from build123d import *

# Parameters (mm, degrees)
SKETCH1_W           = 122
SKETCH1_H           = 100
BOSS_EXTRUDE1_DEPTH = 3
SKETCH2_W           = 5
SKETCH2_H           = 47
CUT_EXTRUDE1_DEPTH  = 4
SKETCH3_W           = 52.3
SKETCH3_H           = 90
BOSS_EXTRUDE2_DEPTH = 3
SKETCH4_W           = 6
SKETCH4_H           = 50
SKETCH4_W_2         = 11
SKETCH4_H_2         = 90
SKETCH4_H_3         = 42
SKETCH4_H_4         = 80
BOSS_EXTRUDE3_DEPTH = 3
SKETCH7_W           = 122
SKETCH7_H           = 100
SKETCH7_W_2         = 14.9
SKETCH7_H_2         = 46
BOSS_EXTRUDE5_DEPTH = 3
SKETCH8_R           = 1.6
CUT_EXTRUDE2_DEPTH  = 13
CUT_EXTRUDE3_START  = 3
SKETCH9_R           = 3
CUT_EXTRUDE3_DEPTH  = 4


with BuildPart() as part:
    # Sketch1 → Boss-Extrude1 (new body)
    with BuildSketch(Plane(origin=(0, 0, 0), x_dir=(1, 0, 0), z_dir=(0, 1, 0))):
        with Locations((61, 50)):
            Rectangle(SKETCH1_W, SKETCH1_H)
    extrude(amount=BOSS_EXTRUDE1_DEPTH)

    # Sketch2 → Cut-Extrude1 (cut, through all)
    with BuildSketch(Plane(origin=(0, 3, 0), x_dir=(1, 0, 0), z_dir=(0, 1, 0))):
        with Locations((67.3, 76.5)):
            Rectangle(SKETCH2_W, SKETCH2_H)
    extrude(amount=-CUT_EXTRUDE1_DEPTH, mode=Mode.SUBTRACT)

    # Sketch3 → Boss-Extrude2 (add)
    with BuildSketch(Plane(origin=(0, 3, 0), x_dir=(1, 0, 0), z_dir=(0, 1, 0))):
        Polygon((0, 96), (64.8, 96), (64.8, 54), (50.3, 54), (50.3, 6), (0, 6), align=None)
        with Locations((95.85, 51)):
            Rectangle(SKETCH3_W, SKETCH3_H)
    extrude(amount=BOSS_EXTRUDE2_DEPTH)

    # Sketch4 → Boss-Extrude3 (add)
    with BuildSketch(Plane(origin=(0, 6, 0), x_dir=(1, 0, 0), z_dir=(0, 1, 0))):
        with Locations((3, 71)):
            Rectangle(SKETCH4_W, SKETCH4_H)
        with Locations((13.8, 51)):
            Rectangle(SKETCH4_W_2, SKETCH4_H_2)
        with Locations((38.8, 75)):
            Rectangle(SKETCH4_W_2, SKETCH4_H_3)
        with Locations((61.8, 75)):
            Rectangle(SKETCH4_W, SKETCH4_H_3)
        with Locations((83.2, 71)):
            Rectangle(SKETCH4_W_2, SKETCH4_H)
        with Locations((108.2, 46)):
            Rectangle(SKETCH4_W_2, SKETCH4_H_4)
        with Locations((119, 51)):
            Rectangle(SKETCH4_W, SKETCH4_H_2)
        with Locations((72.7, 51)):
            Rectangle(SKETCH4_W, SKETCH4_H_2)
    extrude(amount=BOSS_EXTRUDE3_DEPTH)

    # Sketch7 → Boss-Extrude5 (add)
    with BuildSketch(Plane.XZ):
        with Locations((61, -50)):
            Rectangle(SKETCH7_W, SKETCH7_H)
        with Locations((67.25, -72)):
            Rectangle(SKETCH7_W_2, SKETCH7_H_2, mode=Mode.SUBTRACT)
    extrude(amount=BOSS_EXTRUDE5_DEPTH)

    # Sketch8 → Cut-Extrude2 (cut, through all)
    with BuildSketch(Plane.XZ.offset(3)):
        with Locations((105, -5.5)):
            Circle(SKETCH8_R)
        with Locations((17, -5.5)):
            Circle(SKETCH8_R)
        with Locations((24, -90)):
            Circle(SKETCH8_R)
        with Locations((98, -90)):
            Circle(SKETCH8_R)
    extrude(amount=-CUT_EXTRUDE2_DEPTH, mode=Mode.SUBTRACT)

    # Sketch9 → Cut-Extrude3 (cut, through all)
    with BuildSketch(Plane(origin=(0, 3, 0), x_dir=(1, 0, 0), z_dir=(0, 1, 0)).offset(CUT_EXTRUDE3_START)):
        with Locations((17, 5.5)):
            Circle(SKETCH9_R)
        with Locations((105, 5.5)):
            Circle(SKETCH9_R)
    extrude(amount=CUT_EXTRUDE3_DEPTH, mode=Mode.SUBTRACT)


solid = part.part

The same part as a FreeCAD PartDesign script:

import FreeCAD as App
import Part
import Sketcher

doc = App.newDocument("Part")
body = doc.addObject("PartDesign::Body", "Body")

# Sketch on XZ plane
sketch1 = doc.addObject("Sketcher::SketchObject", "Sketch")
body.addObject(sketch1)
sketch1.AttachmentSupport = (doc.XZ_Plane, [""])
sketch1.MapMode = "FlatFace"
sketch1.addGeometry(Part.LineSegment(App.Vector(0, -100, 0), App.Vector(0, 0, 0)), False)
sketch1.addGeometry(Part.LineSegment(App.Vector(0, 0, 0), App.Vector(122, 0, 0)), False)
sketch1.addGeometry(Part.LineSegment(App.Vector(122, 0, 0), App.Vector(122, -100, 0)), False)
sketch1.addGeometry(Part.LineSegment(App.Vector(122, -100, 0), App.Vector(0, -100, 0)), False)
sketch1.addConstraint(Sketcher.Constraint("Coincident", 0, 2, 1, 1))
sketch1.addConstraint(Sketcher.Constraint("Coincident", 1, 2, 2, 1))
sketch1.addConstraint(Sketcher.Constraint("Coincident", 2, 2, 3, 1))
sketch1.addConstraint(Sketcher.Constraint("Coincident", 3, 2, 0, 1))
sketch1.addConstraint(Sketcher.Constraint("Vertical", 0))
sketch1.addConstraint(Sketcher.Constraint("Horizontal", 1))
sketch1.addConstraint(Sketcher.Constraint("Vertical", 2))
sketch1.addConstraint(Sketcher.Constraint("Horizontal", 3))
sketch1.addConstraint(Sketcher.Constraint("Coincident", 0, 2, -1, 1))
sketch1.addConstraint(Sketcher.Constraint("DistanceX", 1, 1, 1, 2, 122.0))
sketch1.addConstraint(Sketcher.Constraint("DistanceY", 0, 1, 0, 2, 100.0))
pad1 = doc.addObject("PartDesign::Pad", "Pad")
body.addObject(pad1)
pad1.Profile = sketch1
pad1.Length = 3
pad1.Reversed = True

# Sketch on XZ plane
sketch2 = doc.addObject("Sketcher::SketchObject", "Sketch001")
body.addObject(sketch2)
sketch2.AttachmentSupport = (doc.XZ_Plane, [""])
sketch2.MapMode = "FlatFace"
sketch2.AttachmentOffset = App.Placement(App.Vector(0, 0, -3), App.Rotation())
sketch2.addGeometry(Part.LineSegment(App.Vector(65, -100, 0), App.Vector(65, -53, 0)), False)
sketch2.addGeometry(Part.LineSegment(App.Vector(65, -53, 0), App.Vector(70, -53, 0)), False)
sketch2.addGeometry(Part.LineSegment(App.Vector(70, -53, 0), App.Vector(70, -100, 0)), False)
sketch2.addGeometry(Part.LineSegment(App.Vector(70, -100, 0), App.Vector(65, -100, 0)), False)
sketch2.addConstraint(Sketcher.Constraint("Coincident", 0, 2, 1, 1))
sketch2.addConstraint(Sketcher.Constraint("Coincident", 1, 2, 2, 1))
sketch2.addConstraint(Sketcher.Constraint("Coincident", 2, 2, 3, 1))
sketch2.addConstraint(Sketcher.Constraint("Coincident", 3, 2, 0, 1))
sketch2.addConstraint(Sketcher.Constraint("Vertical", 0))
sketch2.addConstraint(Sketcher.Constraint("Horizontal", 1))
sketch2.addConstraint(Sketcher.Constraint("Vertical", 2))
sketch2.addConstraint(Sketcher.Constraint("Horizontal", 3))
sketch2.addConstraint(Sketcher.Constraint("DistanceX", 1, 1, 1, 2, 5.0))
sketch2.addConstraint(Sketcher.Constraint("DistanceY", 0, 1, 0, 2, 47.0))
sketch2.addConstraint(Sketcher.Constraint("DistanceY", 0, 2, -1, 1, 53.0))
sketch2.addConstraint(Sketcher.Constraint("DistanceX", -1, 1, 0, 2, 64.8))
pocket1 = doc.addObject("PartDesign::Pocket", "Pocket")
body.addObject(pocket1)
pocket1.Profile = sketch2
pocket1.Type = "ThroughAll"
pocket1.Reversed = True

# Sketch on XZ plane
sketch3 = doc.addObject("Sketcher::SketchObject", "Sketch002")
body.addObject(sketch3)
sketch3.AttachmentSupport = (doc.XZ_Plane, [""])
sketch3.MapMode = "FlatFace"
sketch3.AttachmentOffset = App.Placement(App.Vector(0, 0, -3), App.Rotation())
sketch3.addGeometry(Part.LineSegment(App.Vector(65, -96, 0), App.Vector(0, -96, 0)), False)
sketch3.addGeometry(Part.LineSegment(App.Vector(0, -96, 0), App.Vector(0, -6, 0)), False)
sketch3.addGeometry(Part.LineSegment(App.Vector(0, -6, 0), App.Vector(50, -6, 0)), False)
sketch3.addGeometry(Part.LineSegment(App.Vector(50, -6, 0), App.Vector(50, -54, 0)), False)
sketch3.addGeometry(Part.LineSegment(App.Vector(50, -54, 0), App.Vector(65, -54, 0)), False)
sketch3.addGeometry(Part.LineSegment(App.Vector(65, -54, 0), App.Vector(65, -96, 0)), False)
sketch3.addGeometry(Part.LineSegment(App.Vector(70, -96, 0), App.Vector(70, -6, 0)), False)
sketch3.addGeometry(Part.LineSegment(App.Vector(70, -6, 0), App.Vector(122, -6, 0)), False)
sketch3.addGeometry(Part.LineSegment(App.Vector(122, -6, 0), App.Vector(122, -96, 0)), False)
sketch3.addGeometry(Part.LineSegment(App.Vector(122, -96, 0), App.Vector(70, -96, 0)), False)
sketch3.addConstraint(Sketcher.Constraint("Coincident", 0, 2, 1, 1))
sketch3.addConstraint(Sketcher.Constraint("Coincident", 1, 2, 2, 1))
sketch3.addConstraint(Sketcher.Constraint("Coincident", 2, 2, 3, 1))
sketch3.addConstraint(Sketcher.Constraint("Coincident", 3, 2, 4, 1))
sketch3.addConstraint(Sketcher.Constraint("Coincident", 4, 2, 5, 1))
sketch3.addConstraint(Sketcher.Constraint("Coincident", 5, 2, 0, 1))
sketch3.addConstraint(Sketcher.Constraint("Coincident", 6, 2, 7, 1))
sketch3.addConstraint(Sketcher.Constraint("Coincident", 7, 2, 8, 1))
sketch3.addConstraint(Sketcher.Constraint("Coincident", 8, 2, 9, 1))
sketch3.addConstraint(Sketcher.Constraint("Coincident", 9, 2, 6, 1))
sketch3.addConstraint(Sketcher.Constraint("Horizontal", 0))
sketch3.addConstraint(Sketcher.Constraint("Vertical", 1))
sketch3.addConstraint(Sketcher.Constraint("Horizontal", 2))
sketch3.addConstraint(Sketcher.Constraint("Vertical", 3))
sketch3.addConstraint(Sketcher.Constraint("Horizontal", 4))
sketch3.addConstraint(Sketcher.Constraint("Vertical", 5))
sketch3.addConstraint(Sketcher.Constraint("Vertical", 6))
sketch3.addConstraint(Sketcher.Constraint("Horizontal", 7))
sketch3.addConstraint(Sketcher.Constraint("Vertical", 8))
sketch3.addConstraint(Sketcher.Constraint("Horizontal", 9))
sketch3.addConstraint(Sketcher.Constraint("PointOnObject", 0, 2, -2))
sketch3.addConstraint(Sketcher.Constraint("Horizontal", 2, 2, 6, 2))
sketch3.addConstraint(Sketcher.Constraint("Horizontal", 5, 2, 8, 2))
sketch3.addConstraint(Sketcher.Constraint("DistanceY", 1, 1, 1, 2, 90.0))
sketch3.addConstraint(Sketcher.Constraint("DistanceY", 3, 2, 3, 1, 48.0))
sketch3.addConstraint(Sketcher.Constraint("DistanceX", 0, 2, 0, 1, 64.8))
sketch3.addConstraint(Sketcher.Constraint("DistanceX", 2, 1, 2, 2, 50.3))
sketch3.addConstraint(Sketcher.Constraint("DistanceX", 7, 1, 7, 2, 52.3))
sketch3.addConstraint(Sketcher.Constraint("DistanceY", 0, 2, -1, 1, 96.0))
sketch3.addConstraint(Sketcher.Constraint("DistanceX", -1, 1, 7, 2, 122.0))
pad2 = doc.addObject("PartDesign::Pad", "Pad001")
body.addObject(pad2)
pad2.Profile = sketch3
pad2.Length = 3
pad2.Reversed = True

# Sketch on XZ plane
sketch4 = doc.addObject("Sketcher::SketchObject", "Sketch003")
body.addObject(sketch4)
sketch4.AttachmentSupport = (doc.XZ_Plane, [""])
sketch4.MapMode = "FlatFace"
sketch4.AttachmentOffset = App.Placement(App.Vector(0, 0, -6), App.Rotation())
sketch4.addGeometry(Part.LineSegment(App.Vector(0, -96, 0), App.Vector(0, -46, 0)), False)
sketch4.addGeometry(Part.LineSegment(App.Vector(0, -46, 0), App.Vector(6, -46, 0)), False)
sketch4.addGeometry(Part.LineSegment(App.Vector(6, -46, 0), App.Vector(6, -96, 0)), False)
sketch4.addGeometry(Part.LineSegment(App.Vector(6, -96, 0), App.Vector(0, -96, 0)), False)
sketch4.addGeometry(Part.LineSegment(App.Vector(8, -96, 0), App.Vector(8, -6, 0)), False)
sketch4.addGeometry(Part.LineSegment(App.Vector(8, -6, 0), App.Vector(19, -6, 0)), False)
sketch4.addGeometry(Part.LineSegment(App.Vector(19, -6, 0), App.Vector(19, -96, 0)), False)
sketch4.addGeometry(Part.LineSegment(App.Vector(19, -96, 0), App.Vector(8, -96, 0)), False)
sketch4.addGeometry(Part.LineSegment(App.Vector(33, -96, 0), App.Vector(33, -54, 0)), False)
sketch4.addGeometry(Part.LineSegment(App.Vector(33, -54, 0), App.Vector(44, -54, 0)), False)
sketch4.addGeometry(Part.LineSegment(App.Vector(44, -54, 0), App.Vector(44, -96, 0)), False)
sketch4.addGeometry(Part.LineSegment(App.Vector(44, -96, 0), App.Vector(33, -96, 0)), False)
sketch4.addGeometry(Part.LineSegment(App.Vector(59, -96, 0), App.Vector(59, -54, 0)), False)
sketch4.addGeometry(Part.LineSegment(App.Vector(59, -54, 0), App.Vector(65, -54, 0)), False)
sketch4.addGeometry(Part.LineSegment(App.Vector(65, -54, 0), App.Vector(65, -96, 0)), False)
sketch4.addGeometry(Part.LineSegment(App.Vector(65, -96, 0), App.Vector(59, -96, 0)), False)
sketch4.addGeometry(Part.LineSegment(App.Vector(78, -96, 0), App.Vector(78, -46, 0)), False)
sketch4.addGeometry(Part.LineSegment(App.Vector(78, -46, 0), App.Vector(89, -46, 0)), False)
sketch4.addGeometry(Part.LineSegment(App.Vector(89, -46, 0), App.Vector(89, -96, 0)), False)
sketch4.addGeometry(Part.LineSegment(App.Vector(89, -96, 0), App.Vector(78, -96, 0)), False)
sketch4.addGeometry(Part.LineSegment(App.Vector(103, -86, 0), App.Vector(103, -6, 0)), False)
sketch4.addGeometry(Part.LineSegment(App.Vector(103, -6, 0), App.Vector(114, -6, 0)), False)
sketch4.addGeometry(Part.LineSegment(App.Vector(114, -6, 0), App.Vector(114, -86, 0)), False)
sketch4.addGeometry(Part.LineSegment(App.Vector(114, -86, 0), App.Vector(103, -86, 0)), False)
sketch4.addGeometry(Part.LineSegment(App.Vector(116, -96, 0), App.Vector(116, -6, 0)), False)
sketch4.addGeometry(Part.LineSegment(App.Vector(116, -6, 0), App.Vector(122, -6, 0)), False)
sketch4.addGeometry(Part.LineSegment(App.Vector(122, -6, 0), App.Vector(122, -96, 0)), False)
sketch4.addGeometry(Part.LineSegment(App.Vector(122, -96, 0), App.Vector(116, -96, 0)), False)
sketch4.addGeometry(Part.LineSegment(App.Vector(70, -96, 0), App.Vector(70, -6, 0)), False)
sketch4.addGeometry(Part.LineSegment(App.Vector(70, -6, 0), App.Vector(76, -6, 0)), False)
sketch4.addGeometry(Part.LineSegment(App.Vector(76, -6, 0), App.Vector(76, -96, 0)), False)
sketch4.addGeometry(Part.LineSegment(App.Vector(76, -96, 0), App.Vector(70, -96, 0)), False)
sketch4.addConstraint(Sketcher.Constraint("Coincident", 0, 2, 1, 1))
sketch4.addConstraint(Sketcher.Constraint("Coincident", 1, 2, 2, 1))
sketch4.addConstraint(Sketcher.Constraint("Coincident", 2, 2, 3, 1))
sketch4.addConstraint(Sketcher.Constraint("Coincident", 3, 2, 0, 1))
sketch4.addConstraint(Sketcher.Constraint("Coincident", 4, 2, 5, 1))
sketch4.addConstraint(Sketcher.Constraint("Coincident", 5, 2, 6, 1))
sketch4.addConstraint(Sketcher.Constraint("Coincident", 6, 2, 7, 1))
sketch4.addConstraint(Sketcher.Constraint("Coincident", 7, 2, 4, 1))
sketch4.addConstraint(Sketcher.Constraint("Coincident", 8, 2, 9, 1))
sketch4.addConstraint(Sketcher.Constraint("Coincident", 9, 2, 10, 1))
sketch4.addConstraint(Sketcher.Constraint("Coincident", 10, 2, 11, 1))
sketch4.addConstraint(Sketcher.Constraint("Coincident", 11, 2, 8, 1))
sketch4.addConstraint(Sketcher.Constraint("Coincident", 12, 2, 13, 1))
sketch4.addConstraint(Sketcher.Constraint("Coincident", 13, 2, 14, 1))
sketch4.addConstraint(Sketcher.Constraint("Coincident", 14, 2, 15, 1))
sketch4.addConstraint(Sketcher.Constraint("Coincident", 15, 2, 12, 1))
sketch4.addConstraint(Sketcher.Constraint("Coincident", 16, 2, 17, 1))
sketch4.addConstraint(Sketcher.Constraint("Coincident", 17, 2, 18, 1))
sketch4.addConstraint(Sketcher.Constraint("Coincident", 18, 2, 19, 1))
sketch4.addConstraint(Sketcher.Constraint("Coincident", 19, 2, 16, 1))
sketch4.addConstraint(Sketcher.Constraint("Coincident", 20, 2, 21, 1))
sketch4.addConstraint(Sketcher.Constraint("Coincident", 21, 2, 22, 1))
sketch4.addConstraint(Sketcher.Constraint("Coincident", 22, 2, 23, 1))
sketch4.addConstraint(Sketcher.Constraint("Coincident", 23, 2, 20, 1))
sketch4.addConstraint(Sketcher.Constraint("Coincident", 24, 2, 25, 1))
sketch4.addConstraint(Sketcher.Constraint("Coincident", 25, 2, 26, 1))
sketch4.addConstraint(Sketcher.Constraint("Coincident", 26, 2, 27, 1))
sketch4.addConstraint(Sketcher.Constraint("Coincident", 27, 2, 24, 1))
sketch4.addConstraint(Sketcher.Constraint("Coincident", 28, 2, 29, 1))
sketch4.addConstraint(Sketcher.Constraint("Coincident", 29, 2, 30, 1))
sketch4.addConstraint(Sketcher.Constraint("Coincident", 30, 2, 31, 1))
sketch4.addConstraint(Sketcher.Constraint("Coincident", 31, 2, 28, 1))
sketch4.addConstraint(Sketcher.Constraint("Vertical", 0))
sketch4.addConstraint(Sketcher.Constraint("Horizontal", 1))
sketch4.addConstraint(Sketcher.Constraint("Vertical", 2))
sketch4.addConstraint(Sketcher.Constraint("Horizontal", 3))
sketch4.addConstraint(Sketcher.Constraint("Vertical", 4))
sketch4.addConstraint(Sketcher.Constraint("Horizontal", 5))
sketch4.addConstraint(Sketcher.Constraint("Vertical", 6))
sketch4.addConstraint(Sketcher.Constraint("Horizontal", 7))
sketch4.addConstraint(Sketcher.Constraint("Vertical", 8))
sketch4.addConstraint(Sketcher.Constraint("Horizontal", 9))
sketch4.addConstraint(Sketcher.Constraint("Vertical", 10))
sketch4.addConstraint(Sketcher.Constraint("Horizontal", 11))
sketch4.addConstraint(Sketcher.Constraint("Vertical", 12))
sketch4.addConstraint(Sketcher.Constraint("Horizontal", 13))
sketch4.addConstraint(Sketcher.Constraint("Vertical", 14))
sketch4.addConstraint(Sketcher.Constraint("Horizontal", 15))
sketch4.addConstraint(Sketcher.Constraint("Vertical", 16))
sketch4.addConstraint(Sketcher.Constraint("Horizontal", 17))
sketch4.addConstraint(Sketcher.Constraint("Vertical", 18))
sketch4.addConstraint(Sketcher.Constraint("Horizontal", 19))
sketch4.addConstraint(Sketcher.Constraint("Vertical", 20))
sketch4.addConstraint(Sketcher.Constraint("Horizontal", 21))
sketch4.addConstraint(Sketcher.Constraint("Vertical", 22))
sketch4.addConstraint(Sketcher.Constraint("Horizontal", 23))
sketch4.addConstraint(Sketcher.Constraint("Vertical", 24))
sketch4.addConstraint(Sketcher.Constraint("Horizontal", 25))
sketch4.addConstraint(Sketcher.Constraint("Vertical", 26))
sketch4.addConstraint(Sketcher.Constraint("Horizontal", 27))
sketch4.addConstraint(Sketcher.Constraint("Vertical", 28))
sketch4.addConstraint(Sketcher.Constraint("Horizontal", 29))
sketch4.addConstraint(Sketcher.Constraint("Vertical", 30))
sketch4.addConstraint(Sketcher.Constraint("Horizontal", 31))
sketch4.addConstraint(Sketcher.Constraint("PointOnObject", 0, 2, -2))
sketch4.addConstraint(Sketcher.Constraint("Horizontal", 3, 2, 6, 2))
sketch4.addConstraint(Sketcher.Constraint("Horizontal", 7, 2, 10, 2))
sketch4.addConstraint(Sketcher.Constraint("Horizontal", 9, 2, 12, 2))
sketch4.addConstraint(Sketcher.Constraint("Horizontal", 11, 2, 14, 2))
sketch4.addConstraint(Sketcher.Constraint("Horizontal", 1, 2, 16, 2))
sketch4.addConstraint(Sketcher.Constraint("Horizontal", 15, 2, 18, 2))
sketch4.addConstraint(Sketcher.Constraint("Horizontal", 5, 2, 20, 2))
sketch4.addConstraint(Sketcher.Constraint("Horizontal", 21, 2, 24, 2))
sketch4.addConstraint(Sketcher.Constraint("Horizontal", 19, 2, 26, 2))
sketch4.addConstraint(Sketcher.Constraint("Horizontal", 25, 2, 28, 2))
sketch4.addConstraint(Sketcher.Constraint("Horizontal", 27, 2, 30, 2))
sketch4.addConstraint(Sketcher.Constraint("Equal", 7, 9))
sketch4.addConstraint(Sketcher.Constraint("Equal", 3, 13))
sketch4.addConstraint(Sketcher.Constraint("Equal", 11, 17))
sketch4.addConstraint(Sketcher.Constraint("Equal", 19, 21))
sketch4.addConstraint(Sketcher.Constraint("Equal", 15, 25))
sketch4.addConstraint(Sketcher.Constraint("Equal", 27, 29))
sketch4.addConstraint(Sketcher.Constraint("DistanceX", 1, 1, 1, 2, 6.0))
sketch4.addConstraint(Sketcher.Constraint("DistanceX", 5, 1, 5, 2, 11.0))
sketch4.addConstraint(Sketcher.Constraint("DistanceY", 0, 1, 0, 2, 50.0))
sketch4.addConstraint(Sketcher.Constraint("DistanceY", 4, 1, 4, 2, 90.0))
sketch4.addConstraint(Sketcher.Constraint("DistanceY", 8, 1, 8, 2, 42.0))
sketch4.addConstraint(Sketcher.Constraint("DistanceY", 20, 1, 20, 2, 80.0))
sketch4.addConstraint(Sketcher.Constraint("DistanceY", 0, 2, -1, 1, 46.0))
sketch4.addConstraint(Sketcher.Constraint("DistanceX", -1, 1, 24, 2, 116.0))
sketch4.addConstraint(Sketcher.Constraint("DistanceX", 6, 2, 8, 2, 14.0))
sketch4.addConstraint(Sketcher.Constraint("DistanceX", 17, 2, 20, 2, 14.0))
sketch4.addConstraint(Sketcher.Constraint("DistanceX", 28, 2, 20, 2, 33.0))
sketch4.addConstraint(Sketcher.Constraint("DistanceX", -1, 1, 4, 2, 8.3))
sketch4.addConstraint(Sketcher.Constraint("DistanceX", -1, 1, 12, 2, 58.8))
sketch4.addConstraint(Sketcher.Constraint("DistanceX", -1, 1, 16, 2, 77.7))
pad3 = doc.addObject("PartDesign::Pad", "Pad002")
body.addObject(pad3)
pad3.Profile = sketch4
pad3.Length = 3
pad3.Reversed = True

# Sketch on XZ plane
sketch5 = doc.addObject("Sketcher::SketchObject", "Sketch004")
body.addObject(sketch5)
sketch5.AttachmentSupport = (doc.XZ_Plane, [""])
sketch5.MapMode = "FlatFace"
sketch5.addGeometry(Part.LineSegment(App.Vector(0, 0, 0), App.Vector(0, -100, 0)), False)
sketch5.addGeometry(Part.LineSegment(App.Vector(0, -100, 0), App.Vector(122, -100, 0)), False)
sketch5.addGeometry(Part.LineSegment(App.Vector(122, -100, 0), App.Vector(122, 0, 0)), False)
sketch5.addGeometry(Part.LineSegment(App.Vector(122, 0, 0), App.Vector(0, 0, 0)), False)
sketch5.addGeometry(Part.LineSegment(App.Vector(75, -95, 0), App.Vector(60, -95, 0)), False)
sketch5.addGeometry(Part.LineSegment(App.Vector(60, -95, 0), App.Vector(60, -49, 0)), False)
sketch5.addGeometry(Part.LineSegment(App.Vector(60, -49, 0), App.Vector(75, -49, 0)), False)
sketch5.addGeometry(Part.LineSegment(App.Vector(75, -49, 0), App.Vector(75, -95, 0)), False)
sketch5.addConstraint(Sketcher.Constraint("Coincident", 0, 2, 1, 1))
sketch5.addConstraint(Sketcher.Constraint("Coincident", 1, 2, 2, 1))
sketch5.addConstraint(Sketcher.Constraint("Coincident", 2, 2, 3, 1))
sketch5.addConstraint(Sketcher.Constraint("Coincident", 3, 2, 0, 1))
sketch5.addConstraint(Sketcher.Constraint("Coincident", 4, 2, 5, 1))
sketch5.addConstraint(Sketcher.Constraint("Coincident", 5, 2, 6, 1))
sketch5.addConstraint(Sketcher.Constraint("Coincident", 6, 2, 7, 1))
sketch5.addConstraint(Sketcher.Constraint("Coincident", 7, 2, 4, 1))
sketch5.addConstraint(Sketcher.Constraint("Vertical", 0))
sketch5.addConstraint(Sketcher.Constraint("Horizontal", 1))
sketch5.addConstraint(Sketcher.Constraint("Vertical", 2))
sketch5.addConstraint(Sketcher.Constraint("Horizontal", 3))
sketch5.addConstraint(Sketcher.Constraint("Horizontal", 4))
sketch5.addConstraint(Sketcher.Constraint("Vertical", 5))
sketch5.addConstraint(Sketcher.Constraint("Horizontal", 6))
sketch5.addConstraint(Sketcher.Constraint("Vertical", 7))
sketch5.addConstraint(Sketcher.Constraint("Coincident", 3, 2, -1, 1))
sketch5.addConstraint(Sketcher.Constraint("DistanceX", 1, 1, 1, 2, 122.0))
sketch5.addConstraint(Sketcher.Constraint("DistanceY", 0, 2, 0, 1, 100.0))
sketch5.addConstraint(Sketcher.Constraint("DistanceY", 5, 1, 5, 2, 46.0))
sketch5.addConstraint(Sketcher.Constraint("DistanceX", 4, 2, 4, 1, 14.9))
sketch5.addConstraint(Sketcher.Constraint("DistanceY", 4, 2, -1, 1, 95.0))
sketch5.addConstraint(Sketcher.Constraint("DistanceX", -1, 1, 4, 2, 59.8))
pad4 = doc.addObject("PartDesign::Pad", "Pad003")
body.addObject(pad4)
pad4.Profile = sketch5
pad4.Length = 3

# Sketch on XZ plane
sketch6 = doc.addObject("Sketcher::SketchObject", "Sketch005")
body.addObject(sketch6)
sketch6.AttachmentSupport = (doc.XZ_Plane, [""])
sketch6.MapMode = "FlatFace"
sketch6.AttachmentOffset = App.Placement(App.Vector(0, 0, 3), App.Rotation())
sketch6.addGeometry(Part.Circle(App.Vector(105, -5.5, 0), App.Vector(0, 0, 1), 1.6), False)
sketch6.addGeometry(Part.Circle(App.Vector(17, -5.5, 0), App.Vector(0, 0, 1), 1.6), False)
sketch6.addGeometry(Part.Circle(App.Vector(24, -90, 0), App.Vector(0, 0, 1), 1.6), False)
sketch6.addGeometry(Part.Circle(App.Vector(98, -90, 0), App.Vector(0, 0, 1), 1.6), False)
sketch6.addConstraint(Sketcher.Constraint("Equal", 0, 1))
sketch6.addConstraint(Sketcher.Constraint("Equal", 1, 2))
sketch6.addConstraint(Sketcher.Constraint("Equal", 2, 3))
sketch6.addConstraint(Sketcher.Constraint("Horizontal", 0, 3, 1, 3))
sketch6.addConstraint(Sketcher.Constraint("Horizontal", 2, 3, 3, 3))
sketch6.addConstraint(Sketcher.Constraint("Diameter", 0, 3.2))
sketch6.addConstraint(Sketcher.Constraint("DistanceX", -1, 1, 0, 3, 105.0))
sketch6.addConstraint(Sketcher.Constraint("DistanceX", -1, 1, 1, 3, 17.0))
sketch6.addConstraint(Sketcher.Constraint("DistanceX", -1, 1, 2, 3, 24.0))
sketch6.addConstraint(Sketcher.Constraint("DistanceY", 2, 3, -1, 1, 90.0))
sketch6.addConstraint(Sketcher.Constraint("DistanceX", -1, 1, 3, 3, 98.0))
sketch6.addConstraint(Sketcher.Constraint("DistanceY", 0, 3, -1, 1, 5.5))
pocket2 = doc.addObject("PartDesign::Pocket", "Pocket001")
body.addObject(pocket2)
pocket2.Profile = sketch6
pocket2.Type = "ThroughAll"

# Sketch on XZ plane
sketch7 = doc.addObject("Sketcher::SketchObject", "Sketch006")
body.addObject(sketch7)
sketch7.AttachmentSupport = (doc.XZ_Plane, [""])
sketch7.MapMode = "FlatFace"
sketch7.AttachmentOffset = App.Placement(App.Vector(0, 0, -6), App.Rotation())
sketch7.addGeometry(Part.Circle(App.Vector(17, -5.5, 0), App.Vector(0, 0, 1), 3), False)
sketch7.addGeometry(Part.Circle(App.Vector(105, -5.5, 0), App.Vector(0, 0, 1), 3), False)
sketch7.addConstraint(Sketcher.Constraint("Equal", 0, 1))
sketch7.addConstraint(Sketcher.Constraint("Horizontal", 0, 3, 1, 3))
sketch7.addConstraint(Sketcher.Constraint("Diameter", 0, 6.0))
sketch7.addConstraint(Sketcher.Constraint("DistanceX", -1, 1, 0, 3, 17.0))
sketch7.addConstraint(Sketcher.Constraint("DistanceX", -1, 1, 1, 3, 105.0))
sketch7.addConstraint(Sketcher.Constraint("DistanceY", 0, 3, -1, 1, 5.5))
pocket3 = doc.addObject("PartDesign::Pocket", "Pocket002")
body.addObject(pocket3)
pocket3.Profile = sketch7
pocket3.Type = "ThroughAll"

doc.recompute()
